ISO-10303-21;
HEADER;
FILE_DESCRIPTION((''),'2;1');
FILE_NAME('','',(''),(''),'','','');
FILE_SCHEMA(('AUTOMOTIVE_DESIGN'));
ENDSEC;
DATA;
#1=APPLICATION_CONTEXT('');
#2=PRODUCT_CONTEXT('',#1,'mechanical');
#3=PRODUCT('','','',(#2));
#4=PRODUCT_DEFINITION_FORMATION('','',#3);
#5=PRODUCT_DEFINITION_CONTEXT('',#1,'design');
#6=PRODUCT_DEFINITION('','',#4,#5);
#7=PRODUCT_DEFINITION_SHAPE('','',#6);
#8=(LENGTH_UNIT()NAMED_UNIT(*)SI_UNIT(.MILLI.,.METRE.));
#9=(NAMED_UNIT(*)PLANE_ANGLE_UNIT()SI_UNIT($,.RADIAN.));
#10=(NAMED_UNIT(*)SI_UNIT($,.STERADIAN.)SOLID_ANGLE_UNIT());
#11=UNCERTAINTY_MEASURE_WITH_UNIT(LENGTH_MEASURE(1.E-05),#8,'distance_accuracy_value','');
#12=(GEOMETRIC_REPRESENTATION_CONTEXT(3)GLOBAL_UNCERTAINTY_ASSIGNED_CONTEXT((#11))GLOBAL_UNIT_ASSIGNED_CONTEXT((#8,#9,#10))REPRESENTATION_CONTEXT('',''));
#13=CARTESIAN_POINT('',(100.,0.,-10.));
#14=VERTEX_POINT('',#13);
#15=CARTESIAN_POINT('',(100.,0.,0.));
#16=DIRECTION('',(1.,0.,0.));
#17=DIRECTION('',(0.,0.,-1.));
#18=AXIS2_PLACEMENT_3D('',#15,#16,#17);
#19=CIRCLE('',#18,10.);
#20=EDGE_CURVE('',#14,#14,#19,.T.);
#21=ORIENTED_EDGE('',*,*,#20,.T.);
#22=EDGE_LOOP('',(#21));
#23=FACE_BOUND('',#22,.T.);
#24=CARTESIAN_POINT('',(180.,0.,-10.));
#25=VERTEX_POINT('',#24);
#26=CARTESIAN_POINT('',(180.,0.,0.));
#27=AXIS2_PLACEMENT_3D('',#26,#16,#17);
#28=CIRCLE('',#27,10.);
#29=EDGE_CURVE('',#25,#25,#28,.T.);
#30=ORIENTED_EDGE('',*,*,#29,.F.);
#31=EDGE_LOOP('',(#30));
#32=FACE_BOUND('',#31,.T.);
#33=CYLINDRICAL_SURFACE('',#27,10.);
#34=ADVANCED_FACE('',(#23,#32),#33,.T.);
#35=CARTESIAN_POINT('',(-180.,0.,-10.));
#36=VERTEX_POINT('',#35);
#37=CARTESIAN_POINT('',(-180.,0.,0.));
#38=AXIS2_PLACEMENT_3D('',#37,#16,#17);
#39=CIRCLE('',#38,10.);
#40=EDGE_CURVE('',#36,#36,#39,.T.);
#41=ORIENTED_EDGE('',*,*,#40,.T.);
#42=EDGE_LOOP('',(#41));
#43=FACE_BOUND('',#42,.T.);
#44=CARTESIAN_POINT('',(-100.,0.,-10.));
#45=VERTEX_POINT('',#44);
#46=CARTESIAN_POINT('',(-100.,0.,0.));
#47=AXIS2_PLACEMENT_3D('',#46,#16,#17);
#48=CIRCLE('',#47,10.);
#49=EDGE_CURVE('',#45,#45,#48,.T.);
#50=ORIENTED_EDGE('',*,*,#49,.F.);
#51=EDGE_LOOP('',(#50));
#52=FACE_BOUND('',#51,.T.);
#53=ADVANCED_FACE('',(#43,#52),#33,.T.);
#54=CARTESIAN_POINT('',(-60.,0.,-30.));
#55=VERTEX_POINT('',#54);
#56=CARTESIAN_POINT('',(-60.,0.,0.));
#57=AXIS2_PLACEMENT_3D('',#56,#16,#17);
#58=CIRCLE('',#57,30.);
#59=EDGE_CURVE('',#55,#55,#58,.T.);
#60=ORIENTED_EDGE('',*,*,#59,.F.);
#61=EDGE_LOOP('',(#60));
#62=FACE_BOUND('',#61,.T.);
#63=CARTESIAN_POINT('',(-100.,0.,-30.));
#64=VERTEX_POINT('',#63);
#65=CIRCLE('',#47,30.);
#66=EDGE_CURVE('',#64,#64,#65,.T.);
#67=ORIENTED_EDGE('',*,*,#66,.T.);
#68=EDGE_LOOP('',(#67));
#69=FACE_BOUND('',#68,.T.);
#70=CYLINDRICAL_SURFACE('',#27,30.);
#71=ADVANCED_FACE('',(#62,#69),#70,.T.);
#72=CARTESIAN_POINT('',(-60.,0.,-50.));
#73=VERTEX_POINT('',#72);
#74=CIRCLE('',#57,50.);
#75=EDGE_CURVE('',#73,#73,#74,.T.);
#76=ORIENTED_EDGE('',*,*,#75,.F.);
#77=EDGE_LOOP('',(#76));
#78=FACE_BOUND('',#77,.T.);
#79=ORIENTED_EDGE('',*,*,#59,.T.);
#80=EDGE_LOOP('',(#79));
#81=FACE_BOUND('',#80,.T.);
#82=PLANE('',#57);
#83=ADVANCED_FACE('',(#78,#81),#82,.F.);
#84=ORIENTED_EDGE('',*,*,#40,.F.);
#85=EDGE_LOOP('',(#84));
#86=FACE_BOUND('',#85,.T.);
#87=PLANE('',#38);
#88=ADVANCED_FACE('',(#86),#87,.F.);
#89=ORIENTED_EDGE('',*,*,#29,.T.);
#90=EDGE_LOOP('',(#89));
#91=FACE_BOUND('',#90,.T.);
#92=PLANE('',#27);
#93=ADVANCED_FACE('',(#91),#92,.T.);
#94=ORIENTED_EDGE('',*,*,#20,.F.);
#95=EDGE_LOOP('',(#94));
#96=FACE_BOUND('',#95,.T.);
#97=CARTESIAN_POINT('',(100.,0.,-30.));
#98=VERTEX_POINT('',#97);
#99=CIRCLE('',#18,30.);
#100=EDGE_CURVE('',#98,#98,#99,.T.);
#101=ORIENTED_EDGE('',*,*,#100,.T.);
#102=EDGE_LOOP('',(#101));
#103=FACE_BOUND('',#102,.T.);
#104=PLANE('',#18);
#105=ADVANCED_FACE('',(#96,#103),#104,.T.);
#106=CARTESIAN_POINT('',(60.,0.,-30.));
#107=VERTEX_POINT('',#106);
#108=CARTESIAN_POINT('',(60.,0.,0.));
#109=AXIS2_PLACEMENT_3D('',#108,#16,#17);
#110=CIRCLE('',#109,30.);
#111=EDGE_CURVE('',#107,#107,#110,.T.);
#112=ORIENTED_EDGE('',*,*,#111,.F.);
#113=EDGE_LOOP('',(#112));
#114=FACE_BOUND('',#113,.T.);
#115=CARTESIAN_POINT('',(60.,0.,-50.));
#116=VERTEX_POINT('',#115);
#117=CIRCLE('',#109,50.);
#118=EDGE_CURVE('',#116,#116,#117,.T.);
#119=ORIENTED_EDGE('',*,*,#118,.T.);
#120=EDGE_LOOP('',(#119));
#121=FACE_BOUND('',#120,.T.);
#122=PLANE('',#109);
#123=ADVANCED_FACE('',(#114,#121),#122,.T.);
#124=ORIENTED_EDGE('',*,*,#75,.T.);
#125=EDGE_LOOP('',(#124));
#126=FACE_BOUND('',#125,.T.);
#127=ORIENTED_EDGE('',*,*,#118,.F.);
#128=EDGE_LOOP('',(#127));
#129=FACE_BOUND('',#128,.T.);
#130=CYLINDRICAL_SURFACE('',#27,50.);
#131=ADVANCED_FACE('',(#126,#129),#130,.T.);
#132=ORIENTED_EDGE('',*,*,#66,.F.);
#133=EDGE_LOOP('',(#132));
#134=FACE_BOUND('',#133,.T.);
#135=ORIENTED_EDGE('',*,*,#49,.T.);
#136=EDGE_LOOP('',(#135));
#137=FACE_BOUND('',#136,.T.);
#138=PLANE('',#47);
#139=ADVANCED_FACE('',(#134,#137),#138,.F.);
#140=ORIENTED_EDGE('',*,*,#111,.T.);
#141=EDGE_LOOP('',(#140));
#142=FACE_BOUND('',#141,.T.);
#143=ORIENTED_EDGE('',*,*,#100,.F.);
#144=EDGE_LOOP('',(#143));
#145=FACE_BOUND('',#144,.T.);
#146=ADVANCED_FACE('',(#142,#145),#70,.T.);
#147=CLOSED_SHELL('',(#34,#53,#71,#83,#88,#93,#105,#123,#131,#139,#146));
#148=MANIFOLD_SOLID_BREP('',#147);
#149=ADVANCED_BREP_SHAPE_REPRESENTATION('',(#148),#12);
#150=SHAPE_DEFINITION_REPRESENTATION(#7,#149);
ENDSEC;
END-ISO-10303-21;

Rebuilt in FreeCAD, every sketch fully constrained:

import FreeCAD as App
import Part
import Sketcher


def add_polygon(sketch, points):
    """Adds a closed chain of lines whose ends are joined by coincident constraints."""
    first, n = sketch.GeometryCount, len(points)
    for a, b in zip(points, points[1:] + points[:1]):
        sketch.addGeometry(Part.LineSegment(App.Vector(*a, 0), App.Vector(*b, 0)), False)
    for i in range(n):
        sketch.addConstraint(Sketcher.Constraint("Coincident", first + i, 2, first + (i + 1) % n, 1))

doc = App.newDocument("Part")
body = doc.addObject("PartDesign::Body", "Body")

sketch1 = body.newObject("Sketcher::SketchObject", "Sketch")
sketch1.AttachmentSupport = (doc.getObject("XY_Plane"), [""])
sketch1.MapMode = "FlatFace"
add_polygon(sketch1, [(-180, 0), (180, 0), (180, 10), (100, 10), (100, 30), (60, 30), (60, 50), (-60, 50), (-60, 30), (-100, 30), (-100, 10), (-180, 10)])
sketch1.addConstraint(Sketcher.Constraint("Horizontal", 0))
sketch1.addConstraint(Sketcher.Constraint("Vertical", 1))
sketch1.addConstraint(Sketcher.Constraint("Horizontal", 2))
sketch1.addConstraint(Sketcher.Constraint("Vertical", 3))
sketch1.addConstraint(Sketcher.Constraint("Horizontal", 4))
sketch1.addConstraint(Sketcher.Constraint("Vertical", 5))
sketch1.addConstraint(Sketcher.Constraint("Horizontal", 6))
sketch1.addConstraint(Sketcher.Constraint("Vertical", 7))
sketch1.addConstraint(Sketcher.Constraint("Horizontal", 8))
sketch1.addConstraint(Sketcher.Constraint("Vertical", 9))
sketch1.addConstraint(Sketcher.Constraint("Horizontal", 10))
sketch1.addConstraint(Sketcher.Constraint("Vertical", 11))
sketch1.addConstraint(Sketcher.Constraint("Symmetric", 0, 2, 11, 2, -1, 1))
sketch1.addConstraint(Sketcher.Constraint("Symmetric", 4, 2, 7, 2, -2))
sketch1.addConstraint(Sketcher.Constraint("Symmetric", 2, 2, 9, 2, -2))
sketch1.addConstraint(Sketcher.Constraint("Equal", 3, 5))
sketch1.addConstraint(Sketcher.Constraint("DistanceX", 0, 1, 0, 2, 360.0))
sketch1.addConstraint(Sketcher.Constraint("DistanceX", 2, 2, 2, 1, 80.0))
sketch1.addConstraint(Sketcher.Constraint("DistanceX", 4, 2, 4, 1, 40.0))
sketch1.addConstraint(Sketcher.Constraint("DistanceY", 1, 1, 1, 2, 10.0))
sketch1.addConstraint(Sketcher.Constraint("DistanceY", 3, 1, 3, 2, 20.0))
revolution = body.newObject("PartDesign::Revolution", "Revolution")
revolution.Profile = sketch1
revolution.ReferenceAxis = (sketch1, ["H_Axis"])
revolution.Angle = 360

doc.recompute()
